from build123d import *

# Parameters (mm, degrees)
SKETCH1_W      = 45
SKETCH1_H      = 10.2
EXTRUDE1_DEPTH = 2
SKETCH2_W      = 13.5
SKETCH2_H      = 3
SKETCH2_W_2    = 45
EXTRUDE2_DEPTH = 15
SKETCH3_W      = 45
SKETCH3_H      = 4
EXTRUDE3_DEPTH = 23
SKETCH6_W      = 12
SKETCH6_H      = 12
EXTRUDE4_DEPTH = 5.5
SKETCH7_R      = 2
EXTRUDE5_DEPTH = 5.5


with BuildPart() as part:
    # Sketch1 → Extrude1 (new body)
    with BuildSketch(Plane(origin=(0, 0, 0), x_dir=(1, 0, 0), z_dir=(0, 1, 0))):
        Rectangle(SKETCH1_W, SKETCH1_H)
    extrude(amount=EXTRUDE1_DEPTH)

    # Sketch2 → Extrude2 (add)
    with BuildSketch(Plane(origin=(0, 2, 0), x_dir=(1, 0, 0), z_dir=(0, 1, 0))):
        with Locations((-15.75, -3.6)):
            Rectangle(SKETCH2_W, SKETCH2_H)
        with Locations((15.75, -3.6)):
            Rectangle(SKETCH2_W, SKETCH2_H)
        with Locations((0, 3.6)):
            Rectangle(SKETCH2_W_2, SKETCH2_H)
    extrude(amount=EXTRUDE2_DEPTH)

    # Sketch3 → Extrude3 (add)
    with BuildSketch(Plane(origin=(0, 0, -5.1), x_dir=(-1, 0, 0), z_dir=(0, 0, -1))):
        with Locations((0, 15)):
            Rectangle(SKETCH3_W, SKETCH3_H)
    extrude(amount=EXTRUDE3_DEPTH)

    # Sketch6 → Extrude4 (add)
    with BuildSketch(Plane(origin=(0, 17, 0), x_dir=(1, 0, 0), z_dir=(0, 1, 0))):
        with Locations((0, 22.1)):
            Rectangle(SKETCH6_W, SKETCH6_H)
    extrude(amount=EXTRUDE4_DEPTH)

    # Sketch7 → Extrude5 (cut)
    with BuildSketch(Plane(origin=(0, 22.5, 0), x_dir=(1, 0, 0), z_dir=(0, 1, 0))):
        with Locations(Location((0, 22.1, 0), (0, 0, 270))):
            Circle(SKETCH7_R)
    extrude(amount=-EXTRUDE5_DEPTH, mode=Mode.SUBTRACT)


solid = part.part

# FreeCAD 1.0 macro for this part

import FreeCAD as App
import Part
import Sketcher

V = App.Vector
Q = App.Units.Quantity


def add_polygon(sketch, points):
    """Adds a closed chain of lines whose ends are joined by coincident constraints."""
    first, n = sketch.GeometryCount, len(points)
    for a, b in zip(points, points[1:] + points[:1]):
        sketch.addGeometry(Part.LineSegment(App.Vector(*a, 0), App.Vector(*b, 0)), False)
    for i in range(n):
        sketch.addConstraint(Sketcher.Constraint("Coincident", first + i, 2, first + (i + 1) % n, 1))

doc = App.newDocument("Part")
body = doc.addObject("PartDesign::Body", "Body")

# Sketch on XZ plane
sketch1 = doc.addObject("Sketcher::SketchObject", "Sketch")
body.addObject(sketch1)
sketch1.AttachmentSupport = (doc.XZ_Plane, [""])
sketch1.MapMode = "FlatFace"
add_polygon(sketch1, [(-22, -5), (-22, 5), (22, 5), (22, -5)])  # lines 0-3
sketch1.addConstraint(Sketcher.Constraint("Vertical", 0))
sketch1.addConstraint(Sketcher.Constraint("Horizontal", 1))
sketch1.addConstraint(Sketcher.Constraint("Vertical", 2))
sketch1.addConstraint(Sketcher.Constraint("Horizontal", 3))
sketch1.addConstraint(Sketcher.Constraint("Symmetric", 0, 2, 2, 2, -1, 1))
sketch1.addConstraint(Sketcher.Constraint("DistanceX", 1, 1, 1, 2, Q("45 mm")))
sketch1.addConstraint(Sketcher.Constraint("DistanceY", 0, 1, 0, 2, Q("10.2 mm")))
pad1 = doc.addObject("PartDesign::Pad", "Pad")
body.addObject(pad1)
pad1.Profile = sketch1
pad1.Length = 2
pad1.Reversed = True

# Sketch on XZ plane
sketch2 = doc.addObject("Sketcher::SketchObject", "Sketch001")
body.addObject(sketch2)
sketch2.AttachmentSupport = (doc.XZ_Plane, [""])
sketch2.MapMode = "FlatFace"
sketch2.AttachmentOffset = App.Placement(V(0, 0, -2), App.Rotation())
add_polygon(sketch2, [(-22.5, 2.1), (-22.5, 5.1), (-9, 5.1), (-9, 2.1)])  # lines 0-3
add_polygon(sketch2, [(9, 2.1), (9, 5.1), (22.5, 5.1), (22.5, 2.1)])  # lines 4-7
add_polygon(sketch2, [(-22.5, -5.1), (-22.5, -2.1), (22.5, -2.1), (22.5, -5.1)])  # lines 8-11
sketch2.addConstraint(Sketcher.Constraint("Vertical", 0))
sketch2.addConstraint(Sketcher.Constraint("Horizontal", 1))
sketch2.addConstraint(Sketcher.Constraint("Vertical", 2))
sketch2.addConstraint(Sketcher.Constraint("Horizontal", 3))
sketch2.addConstraint(Sketcher.Constraint("Vertical", 4))
sketch2.addConstraint(Sketcher.Constraint("Horizontal", 5))
sketch2.addConstraint(Sketcher.Constraint("Vertical", 6))
sketch2.addConstraint(Sketcher.Constraint("Horizontal", 7))
sketch2.addConstraint(Sketcher.Constraint("Vertical", 8))
sketch2.addConstraint(Sketcher.Constraint("Horizontal", 9))
sketch2.addConstraint(Sketcher.Constraint("Vertical", 10))
sketch2.addConstraint(Sketcher.Constraint("Horizontal", 11))
sketch2.addConstraint(Sketcher.Constraint("Symmetric", 6, 2, 8, 2, -1, 1))
sketch2.addConstraint(Sketcher.Constraint("Symmetric", 3, 2, 9, 2, -1, 1))
sketch2.addConstraint(Sketcher.Constraint("Symmetric", 1, 2, 4, 2, -2))
sketch2.addConstraint(Sketcher.Constraint("Symmetric", 5, 2, 10, 2, -1))
sketch2.addConstraint(Sketcher.Constraint("DistanceX", 9, 1, 9, 2, Q("45 mm")))
sketch2.addConstraint(Sketcher.Constraint("DistanceY", 0, 1, 0, 2, Q("3 mm")))
sketch2.addConstraint(Sketcher.Constraint("DistanceX", 1, 1, 1, 2, Q("13.5 mm")))
sketch2.addConstraint(Sketcher.Constraint("DistanceY", -1, 1, 0, 2, Q("5.1 mm")))
pad2 = doc.addObject("PartDesign::Pad", "Pad001")
body.addObject(pad2)
pad2.Profile = sketch2
pad2.Length = 15
pad2.Reversed = True

# Sketch on XY plane
sketch3 = doc.addObject("Sketcher::SketchObject", "Sketch002")
body.addObject(sketch3)
sketch3.AttachmentSupport = (doc.XY_Plane, [""])
sketch3.MapMode = "FlatFace"
sketch3.AttachmentOffset = App.Placement(V(0, 0, -5.1), App.Rotation())
add_polygon(sketch3, [(22.5, 17), (22.5, 13), (-22.5, 13), (-22.5, 17)])  # lines 0-3
sketch3.addConstraint(Sketcher.Constraint("Vertical", 0))
sketch3.addConstraint(Sketcher.Constraint("Horizontal", 1))
sketch3.addConstraint(Sketcher.Constraint("Vertical", 2))
sketch3.addConstraint(Sketcher.Constraint("Horizontal", 3))
sketch3.addConstraint(Sketcher.Constraint("DistanceX", 1, 2, 1, 1, Q("45 mm")))
sketch3.addConstraint(Sketcher.Constraint("DistanceY", 0, 2, 0, 1, Q("4 mm")))
sketch3.addConstraint(Sketcher.Constraint("DistanceY", -1, 1, 0, 2, Q("13 mm")))
sketch3.addConstraint(Sketcher.Constraint("DistanceX", -1, 1, 0, 2, Q("22.5 mm")))
pad3 = doc.addObject("PartDesign::Pad", "Pad002")
body.addObject(pad3)
pad3.Profile = sketch3
pad3.Length = 23
pad3.Reversed = True

# Sketch on XZ plane
sketch4 = doc.addObject("Sketcher::SketchObject", "Sketch003")
body.addObject(sketch4)
sketch4.AttachmentSupport = (doc.XZ_Plane, [""])
sketch4.MapMode = "FlatFace"
sketch4.AttachmentOffset = App.Placement(V(0, 0, -17), App.Rotation())
add_polygon(sketch4, [(-6, -28), (-6, -16), (6, -16), (6, -28)])  # lines 0-3
sketch4.addConstraint(Sketcher.Constraint("Vertical", 0))
sketch4.addConstraint(Sketcher.Constraint("Horizontal", 1))
sketch4.addConstraint(Sketcher.Constraint("Vertical", 2))
sketch4.addConstraint(Sketcher.Constraint("Horizontal", 3))
sketch4.addConstraint(Sketcher.Constraint("Equal", 3, 0))
sketch4.addConstraint(Sketcher.Constraint("DistanceX", 1, 1, 1, 2, Q("12 mm")))
sketch4.addConstraint(Sketcher.Constraint("DistanceX", 0, 2, -1, 1, Q("6 mm")))
sketch4.addConstraint(Sketcher.Constraint("DistanceY", 0, 2, -1, 1, Q("16.1 mm")))
pad4 = doc.addObject("PartDesign::Pad", "Pad003")
body.addObject(pad4)
pad4.Profile = sketch4
pad4.Length = 5.5
pad4.Reversed = True

# Sketch on XZ plane
sketch5 = doc.addObject("Sketcher::SketchObject", "Sketch004")
body.addObject(sketch5)
sketch5.AttachmentSupport = (doc.XZ_Plane, [""])
sketch5.MapMode = "FlatFace"
sketch5.AttachmentOffset = App.Placement(V(0, 0, -22.5), App.Rotation())
sketch5.addGeometry(Part.Circle(V(0, -22.1, 0), V(0, 0, 1), 2), False)
sketch5.addConstraint(Sketcher.Constraint("PointOnObject", 0, 3, -2))
sketch5.addConstraint(Sketcher.Constraint("Diameter", 0, Q("4 mm")))
sketch5.addConstraint(Sketcher.Constraint("DistanceY", 0, 3, -1, 1, Q("22.1 mm")))
pocket1 = doc.addObject("PartDesign::Pocket", "Pocket")
body.addObject(pocket1)
pocket1.Profile = sketch5
pocket1.Length = 5.5
pocket1.Reversed = True

doc.recompute()
